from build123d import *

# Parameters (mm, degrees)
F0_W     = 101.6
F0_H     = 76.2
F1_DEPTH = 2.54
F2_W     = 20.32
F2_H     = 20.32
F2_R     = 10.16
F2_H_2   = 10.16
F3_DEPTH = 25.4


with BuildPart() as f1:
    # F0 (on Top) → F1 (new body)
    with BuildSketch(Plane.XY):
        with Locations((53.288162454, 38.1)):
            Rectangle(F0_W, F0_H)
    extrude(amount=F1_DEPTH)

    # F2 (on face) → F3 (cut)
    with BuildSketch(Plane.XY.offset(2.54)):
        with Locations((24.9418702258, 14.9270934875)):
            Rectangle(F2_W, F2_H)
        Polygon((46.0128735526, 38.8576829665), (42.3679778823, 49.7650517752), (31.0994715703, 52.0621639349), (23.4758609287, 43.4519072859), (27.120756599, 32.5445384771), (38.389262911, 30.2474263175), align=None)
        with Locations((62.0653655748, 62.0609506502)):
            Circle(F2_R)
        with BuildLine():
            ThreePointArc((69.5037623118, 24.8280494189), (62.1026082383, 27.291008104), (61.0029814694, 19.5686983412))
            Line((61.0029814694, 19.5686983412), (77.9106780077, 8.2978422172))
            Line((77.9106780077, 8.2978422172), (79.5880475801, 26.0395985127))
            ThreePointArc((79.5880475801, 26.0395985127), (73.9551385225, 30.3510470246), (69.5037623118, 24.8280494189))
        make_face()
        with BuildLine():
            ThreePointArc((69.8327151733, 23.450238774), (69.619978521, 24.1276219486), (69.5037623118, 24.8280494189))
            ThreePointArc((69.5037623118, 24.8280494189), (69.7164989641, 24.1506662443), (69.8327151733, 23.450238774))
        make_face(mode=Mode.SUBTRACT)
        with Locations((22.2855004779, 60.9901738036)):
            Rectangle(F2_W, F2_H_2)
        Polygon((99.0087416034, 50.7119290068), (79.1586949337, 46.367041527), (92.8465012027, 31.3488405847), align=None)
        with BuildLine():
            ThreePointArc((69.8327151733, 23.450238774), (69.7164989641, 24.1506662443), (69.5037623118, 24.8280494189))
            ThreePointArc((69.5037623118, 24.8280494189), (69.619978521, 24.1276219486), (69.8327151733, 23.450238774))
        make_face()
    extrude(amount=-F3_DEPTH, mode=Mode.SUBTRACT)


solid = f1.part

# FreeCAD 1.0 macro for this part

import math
import FreeCAD as App
import Part
import Sketcher
from FreeCAD import Vector
Q = App.Units.Quantity


def add_polygon(sketch, points):
    """Adds a closed chain of lines whose ends are joined by coincident constraints."""
    first, n = sketch.GeometryCount, len(points)
    for a, b in zip(points, points[1:] + points[:1]):
        sketch.addGeometry(Part.LineSegment(App.Vector(*a, 0), App.Vector(*b, 0)), False)
    for i in range(n):
        sketch.addConstraint(Sketcher.Constraint("Coincident", first + i, 2, first + (i + 1) % n, 1))

doc = App.newDocument("Part")
body = doc.addObject("PartDesign::Body", "Body")

# Sketch on XY plane
sketch1 = body.newObject("Sketcher::SketchObject", "Sketch")
sketch1.AttachmentSupport = (doc.getObject("XY_Plane"), [""])
sketch1.MapMode = "FlatFace"
add_polygon(sketch1, [(2, 76), (2, 0), (104, 0), (104, 76)])  # lines 0-3
sketch1.addConstraint([
    Sketcher.Constraint("Vertical", 0),
    Sketcher.Constraint("Horizontal", 1),
    Sketcher.Constraint("Vertical", 2),
    Sketcher.Constraint("Horizontal", 3),
    Sketcher.Constraint("PointOnObject", 0, 2, -1),
    Sketcher.Constraint("DistanceX", 1, 1, 1, 2, Q("4 in")),
    Sketcher.Constraint("DistanceY", 0, 2, 0, 1, Q("3 in")),
    Sketcher.Constraint("DistanceX", -1, 1, 0, 2, Q("2.488162 mm")),
])
pad1 = body.newObject("PartDesign::Pad", "Pad")
pad1.Profile = sketch1
pad1.Length = Q("0.1 in")

# Sketch on XY plane
sketch2 = body.newObject("Sketcher::SketchObject", "Sketch001")
sketch2.AttachmentSupport = (doc.getObject("XY_Plane"), [""])
sketch2.MapMode = "FlatFace"
sketch2.AttachmentOffset = App.Placement(Vector(0, 0, 0.1 * 25.4), App.Rotation())
add_polygon(sketch2, [(15, 25), (15, 5), (35, 5), (35, 25)])  # lines 0-3
add_polygon(sketch2, [(46, 39), (42, 50), (31, 52), (23, 43), (27, 33), (38, 30)])  # lines 4-9
sketch2.addGeometry(Part.Circle(Vector(62, 62, 0), Vector(0, 0, 1), 10), False)  # 10
sketch2.addGeometry(Part.LineSegment(Vector(78, 8, 0), Vector(80, 26, 0)), False)  # 11
sketch2.addGeometry(Part.ArcOfCircle(Part.Circle(Vector(75, 25, 0), Vector(0, 0, 1), 5), math.radians(8), math.radians(185)), False)  # 12
sketch2.addGeometry(Part.ArcOfCircle(Part.Circle(Vector(65, 23, 0), Vector(0, 0, 1), 5), math.radians(21), math.radians(222)), False)  # 13
sketch2.addGeometry(Part.LineSegment(Vector(61, 20, 0), Vector(78, 8, 0)), False)  # 14
add_polygon(sketch2, [(12, 66), (12, 56), (32, 56), (32, 66)])  # lines 15-18
add_polygon(sketch2, [(99, 51), (79, 46), (93, 31)])  # lines 19-21
sketch2.addConstraint([
    Sketcher.Constraint("Coincident", 11, 2, 12, 1),
    Sketcher.Constraint("Coincident", 12, 2, 13, 1),
    Sketcher.Constraint("Coincident", 13, 2, 14, 1),
    Sketcher.Constraint("Coincident", 14, 2, 11, 1),
    Sketcher.Constraint("Vertical", 0),
    Sketcher.Constraint("Horizontal", 1),
    Sketcher.Constraint("Vertical", 2),
    Sketcher.Constraint("Horizontal", 3),
    Sketcher.Constraint("Vertical", 15),
    Sketcher.Constraint("Horizontal", 16),
    Sketcher.Constraint("Vertical", 17),
    Sketcher.Constraint("Horizontal", 18),
    Sketcher.Constraint("Equal", 12, 13),
    Sketcher.Constraint("Parallel", 4, 7),
    Sketcher.Constraint("Parallel", 5, 8),
    Sketcher.Constraint("Parallel", 6, 9),
    Sketcher.Constraint("Equal", 3, 16),
    Sketcher.Constraint("Equal", 18, 0),
    Sketcher.Constraint("Equal", 4, 5),
    Sketcher.Constraint("Equal", 5, 6),
    Sketcher.Constraint("Equal", 6, 7),
    Sketcher.Constraint("Equal", 14, 19),
    Sketcher.Constraint("Equal", 19, 20),
    Sketcher.Constraint("Equal", 20, 21),
    Sketcher.Constraint("Diameter", 10, Q("0.8 in")),
    Sketcher.Constraint("Radius", 12, Q("0.2 in")),
    Sketcher.Constraint("DistanceX", 1, 1, 1, 2, Q("0.8 in")),
    Sketcher.Constraint("DistanceY", 15, 2, 15, 1, Q("0.4 in")),
    Sketcher.Constraint("Distance", 14, Q("0.8 in")),
    Sketcher.Constraint("DistanceY", 2, 2, 7, 2, Q("0.2936002 in")),
    Sketcher.Constraint("DistanceX", 6, 2, 7, 2, Q("0.1434998 in")),
    Sketcher.Constraint("DistanceY", -1, 1, 11, 2, Q("26.039599 mm")),
    Sketcher.Constraint("DistanceY", -1, 1, 13, 2, Q("19.568698 mm")),
    Sketcher.Constraint("DistanceX", -1, 1, 15, 2, Q("12.1255 mm")),
    Sketcher.Constraint("DistanceX", -1, 1, 20, 2, Q("92.846501 mm")),
    Sketcher.Constraint("DistanceY", 4, 2, 10, 3, Q("12.295899 mm")),
    Sketcher.Constraint("DistanceX", 5, 2, 2, 2, Q("4.002399 mm")),
    Sketcher.Constraint("DistanceX", 6, 2, 8, 2, Q("14.913402 mm")),
    Sketcher.Constraint("DistanceX", 8, 2, 12, 2, Q("31.114499 mm")),
    Sketcher.Constraint("DistanceY", 20, 2, 19, 2, Q("15.018201 mm")),
    Sketcher.Constraint("DistanceY", 14, 2, 20, 2, Q("23.050998 mm")),
    Sketcher.Constraint("Distance", 4, Q("11.500259 mm")),
    Sketcher.Constraint("DistanceY", -1, 1, 10, 3, Q("62.060951 mm")),
    Sketcher.Constraint("DistanceY", -1, 1, 13, 3, Q("22.970971 mm")),
    Sketcher.Constraint("DistanceX", -1, 1, 0, 2, Q("14.78187 mm")),
    Sketcher.Constraint("DistanceX", -1, 1, 6, 2, Q("23.475861 mm")),
    Sketcher.Constraint("DistanceY", -1, 1, 12, 2, Q("24.828049 mm")),
    Sketcher.Constraint("DistanceX", -1, 1, 14, 2, Q("77.910678 mm")),
    Sketcher.Constraint("DistanceX", 10, 3, 12, 3, Q("12.495738 mm")),
    Sketcher.Constraint("DistanceX", 13, 3, 12, 3, Q("9.78573 mm")),
    Sketcher.Constraint("DistanceY", 5, 2, 15, 2, Q("3.84801 mm")),
])
pocket1 = body.newObject("PartDesign::Pocket", "Pocket")
pocket1.Profile = sketch2
pocket1.Length = Q("1 in")

doc.recompute()
